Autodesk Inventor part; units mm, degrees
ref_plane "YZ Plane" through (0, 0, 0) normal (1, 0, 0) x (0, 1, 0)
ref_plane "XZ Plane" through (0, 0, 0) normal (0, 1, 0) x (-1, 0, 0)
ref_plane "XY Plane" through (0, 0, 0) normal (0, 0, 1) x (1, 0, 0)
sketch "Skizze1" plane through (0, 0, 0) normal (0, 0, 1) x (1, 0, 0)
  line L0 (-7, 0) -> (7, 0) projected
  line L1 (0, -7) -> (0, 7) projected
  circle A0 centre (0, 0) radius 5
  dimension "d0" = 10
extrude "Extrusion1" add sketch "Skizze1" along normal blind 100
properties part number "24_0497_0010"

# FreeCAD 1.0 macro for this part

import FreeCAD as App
import Part
import Sketcher
from FreeCAD import Vector
Q = App.Units.Quantity

doc = App.newDocument("Part")
body = doc.addObject("PartDesign::Body", "Body")

# Sketch on XY plane
sketch1 = body.newObject("Sketcher::SketchObject", "Sketch")
sketch1.AttachmentSupport = (doc.getObject("XY_Plane"), [""])
sketch1.MapMode = "FlatFace"
sketch1.addGeometry(Part.Circle(Vector(0, 0, 0), Vector(0, 0, 1), 5), False)
sketch1.addConstraint([
    Sketcher.Constraint("Coincident", 0, 3, -1, 1),
    Sketcher.Constraint("Diameter", 0, Q("0.3937 in")),
])
pad1 = body.newObject("PartDesign::Pad", "Pad")
pad1.Profile = sketch1
pad1.Length = Q("3.9370079 in")

doc.recompute()
